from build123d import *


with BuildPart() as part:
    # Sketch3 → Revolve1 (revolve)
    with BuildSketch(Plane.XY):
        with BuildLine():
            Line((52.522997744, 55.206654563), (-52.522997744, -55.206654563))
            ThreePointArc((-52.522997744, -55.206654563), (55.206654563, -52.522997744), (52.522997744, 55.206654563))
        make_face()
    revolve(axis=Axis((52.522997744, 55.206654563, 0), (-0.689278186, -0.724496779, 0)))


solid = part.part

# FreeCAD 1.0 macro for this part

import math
import FreeCAD as App
import Part
import Sketcher
from FreeCAD import Vector
Q = App.Units.Quantity

doc = App.newDocument("Part")
body = doc.addObject("PartDesign::Body", "Body")

# Sketch on XY plane
sketch1 = body.newObject("Sketcher::SketchObject", "Sketch")
sketch1.AttachmentSupport = (doc.getObject("XY_Plane"), [""])
sketch1.MapMode = "FlatFace"
sketch1.addGeometry(Part.LineSegment(Vector(53, 55, 0), Vector(-53, -55, 0)), False)
sketch1.addGeometry(Part.ArcOfCircle(Part.Circle(Vector(0, 0, 0), Vector(0, 0, 1), 76), math.radians(-134), math.radians(46)), False)
sketch1.addGeometry(Part.LineSegment(Vector(53, 55, 0), Vector(-53, -55, 0)), True)  # axis
sketch1.addConstraint(Sketcher.Constraint("Coincident", 0, 1, 1, 2))
sketch1.addConstraint(Sketcher.Constraint("Coincident", 1, 1, 0, 2))
sketch1.addConstraint(Sketcher.Constraint("Coincident", 1, 3, -1, 1))
sketch1.addConstraint(Sketcher.Constraint("Coincident", 2, 1, 0, 1))
sketch1.addConstraint(Sketcher.Constraint("Coincident", 2, 2, 1, 1))
sketch1.addConstraint(Sketcher.Constraint("Radius", 1, Q("3 in")))
sketch1.addConstraint(Sketcher.Constraint("DistanceY", 1, 1, 0, 1, 110.413309))
sketch1.addConstraint(Sketcher.Constraint("DistanceX", -1, 1, 0, 1, 52.522998))
revolution = body.newObject("PartDesign::Revolution", "Revolution")
revolution.Profile = sketch1
revolution.ReferenceAxis = (sketch1, ["Axis0"])
revolution.Angle = 360

doc.recompute()
